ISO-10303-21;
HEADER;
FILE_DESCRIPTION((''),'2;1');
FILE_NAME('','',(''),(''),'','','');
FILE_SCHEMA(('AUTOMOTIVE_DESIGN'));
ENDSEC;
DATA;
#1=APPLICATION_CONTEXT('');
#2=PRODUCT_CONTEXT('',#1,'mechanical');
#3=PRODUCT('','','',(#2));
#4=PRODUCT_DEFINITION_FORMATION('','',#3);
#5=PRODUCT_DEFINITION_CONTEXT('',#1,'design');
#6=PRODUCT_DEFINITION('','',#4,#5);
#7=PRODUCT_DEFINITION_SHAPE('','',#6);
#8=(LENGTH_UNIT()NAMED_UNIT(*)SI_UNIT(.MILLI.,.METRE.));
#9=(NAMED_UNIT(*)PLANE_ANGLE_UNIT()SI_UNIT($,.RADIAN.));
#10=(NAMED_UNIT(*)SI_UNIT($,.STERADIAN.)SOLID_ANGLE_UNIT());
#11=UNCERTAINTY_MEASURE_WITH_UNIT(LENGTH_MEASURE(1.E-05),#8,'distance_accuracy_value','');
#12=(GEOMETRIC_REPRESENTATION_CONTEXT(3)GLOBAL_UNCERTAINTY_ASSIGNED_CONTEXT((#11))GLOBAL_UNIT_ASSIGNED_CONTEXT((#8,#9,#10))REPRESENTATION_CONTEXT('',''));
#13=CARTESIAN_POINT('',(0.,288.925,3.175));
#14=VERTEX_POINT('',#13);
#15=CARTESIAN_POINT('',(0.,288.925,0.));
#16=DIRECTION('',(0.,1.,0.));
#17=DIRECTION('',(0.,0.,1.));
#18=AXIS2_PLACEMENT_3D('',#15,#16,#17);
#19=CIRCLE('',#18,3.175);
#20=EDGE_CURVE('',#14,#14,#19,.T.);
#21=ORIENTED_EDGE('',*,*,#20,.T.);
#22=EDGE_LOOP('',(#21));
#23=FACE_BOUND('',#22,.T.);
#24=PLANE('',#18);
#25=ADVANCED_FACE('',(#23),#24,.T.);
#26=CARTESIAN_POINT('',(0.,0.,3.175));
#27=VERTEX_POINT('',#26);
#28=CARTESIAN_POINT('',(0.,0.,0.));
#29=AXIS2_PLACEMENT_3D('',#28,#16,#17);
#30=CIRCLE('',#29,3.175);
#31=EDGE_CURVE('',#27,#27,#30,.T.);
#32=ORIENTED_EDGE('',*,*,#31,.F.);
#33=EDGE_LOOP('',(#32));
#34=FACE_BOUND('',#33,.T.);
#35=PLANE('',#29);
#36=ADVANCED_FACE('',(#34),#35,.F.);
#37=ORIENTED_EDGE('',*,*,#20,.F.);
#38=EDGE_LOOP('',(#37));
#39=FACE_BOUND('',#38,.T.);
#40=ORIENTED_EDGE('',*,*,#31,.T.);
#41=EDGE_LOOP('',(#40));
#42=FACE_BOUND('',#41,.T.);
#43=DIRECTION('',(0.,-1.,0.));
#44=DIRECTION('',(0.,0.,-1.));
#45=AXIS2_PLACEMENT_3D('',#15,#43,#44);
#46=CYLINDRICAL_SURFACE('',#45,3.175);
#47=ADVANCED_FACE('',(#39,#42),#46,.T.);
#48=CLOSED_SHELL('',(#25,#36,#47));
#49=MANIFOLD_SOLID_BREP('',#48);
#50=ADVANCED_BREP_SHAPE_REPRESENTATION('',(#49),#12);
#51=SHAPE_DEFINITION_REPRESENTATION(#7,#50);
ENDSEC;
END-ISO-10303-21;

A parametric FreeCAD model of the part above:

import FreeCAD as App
import Part
import Sketcher

V = App.Vector
Q = App.Units.Quantity

doc = App.newDocument("Part")
body = doc.addObject("PartDesign::Body", "Body")

# Sketch on XZ plane
sketch1 = doc.addObject("Sketcher::SketchObject", "Sketch")
body.addObject(sketch1)
sketch1.AttachmentSupport = (doc.XZ_Plane, [""])
sketch1.MapMode = "FlatFace"
sketch1.addGeometry(Part.Circle(V(0, 0, 0), V(0, 0, 1), 3.2), False)
sketch1.addConstraint(Sketcher.Constraint("Coincident", 0, 3, -1, 1))
sketch1.addConstraint(Sketcher.Constraint("Diameter", 0, Q("0.25 in")))
pad1 = doc.addObject("PartDesign::Pad", "Pad")
body.addObject(pad1)
pad1.Profile = sketch1
pad1.Length = Q("11.375 in")
pad1.Reversed = True

doc.recompute()
